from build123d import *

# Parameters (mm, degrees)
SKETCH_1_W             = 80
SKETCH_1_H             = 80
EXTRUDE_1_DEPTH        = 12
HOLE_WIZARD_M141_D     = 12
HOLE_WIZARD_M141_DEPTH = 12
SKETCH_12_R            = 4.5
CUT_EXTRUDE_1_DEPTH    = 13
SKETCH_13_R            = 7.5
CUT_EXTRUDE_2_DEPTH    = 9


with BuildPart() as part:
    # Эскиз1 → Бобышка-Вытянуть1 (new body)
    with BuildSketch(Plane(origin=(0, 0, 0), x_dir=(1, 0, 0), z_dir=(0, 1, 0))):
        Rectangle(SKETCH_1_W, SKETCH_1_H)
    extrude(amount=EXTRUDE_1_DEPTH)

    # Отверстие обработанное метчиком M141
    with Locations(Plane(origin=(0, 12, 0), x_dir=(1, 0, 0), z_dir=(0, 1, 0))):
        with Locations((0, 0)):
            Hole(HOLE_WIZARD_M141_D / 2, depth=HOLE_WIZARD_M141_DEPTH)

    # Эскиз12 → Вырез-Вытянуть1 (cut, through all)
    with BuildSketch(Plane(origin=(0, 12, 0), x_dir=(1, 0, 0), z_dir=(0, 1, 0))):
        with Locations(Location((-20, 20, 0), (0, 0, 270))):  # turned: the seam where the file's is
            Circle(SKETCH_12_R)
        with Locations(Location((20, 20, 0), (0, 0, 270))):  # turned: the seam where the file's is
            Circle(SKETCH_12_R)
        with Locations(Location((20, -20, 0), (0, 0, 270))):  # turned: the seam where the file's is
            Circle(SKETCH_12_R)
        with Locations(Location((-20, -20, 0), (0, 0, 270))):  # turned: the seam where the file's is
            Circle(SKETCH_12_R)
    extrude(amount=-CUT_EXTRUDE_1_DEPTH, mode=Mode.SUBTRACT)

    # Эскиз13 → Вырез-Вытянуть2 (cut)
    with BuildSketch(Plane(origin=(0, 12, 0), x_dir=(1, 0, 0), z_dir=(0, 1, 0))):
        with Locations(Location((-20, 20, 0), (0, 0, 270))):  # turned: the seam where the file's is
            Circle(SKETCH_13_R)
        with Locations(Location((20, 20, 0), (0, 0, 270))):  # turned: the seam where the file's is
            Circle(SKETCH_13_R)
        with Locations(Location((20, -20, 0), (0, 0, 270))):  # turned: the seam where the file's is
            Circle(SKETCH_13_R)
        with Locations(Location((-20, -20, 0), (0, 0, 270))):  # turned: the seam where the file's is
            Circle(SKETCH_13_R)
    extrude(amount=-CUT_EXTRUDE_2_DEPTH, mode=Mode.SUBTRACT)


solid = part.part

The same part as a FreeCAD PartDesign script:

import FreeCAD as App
import Part
import Sketcher

doc = App.newDocument("Part")
params = doc.addObject("Spreadsheet::Sheet", "Params")
for row, (alias, value) in enumerate([
    ("sketch1_width", "80 mm"),
    ("pad1_length", "12 mm"),
    ("sketch2_diameter", "12 mm"),
    ("hole_diameter", "12 mm"),
    ("hole_depth", "12 mm"),
    ("sketch3_diameter", "9 mm"),
    ("sketch4_diameter", "15 mm"),
    ("pocket2_length", "9 mm"),
], start=1):
    params.set(f"A{row}", alias)
    params.set(f"B{row}", "=" + value)
    params.setAlias(f"B{row}", alias)

body = doc.addObject("PartDesign::Body", "Body")

# Sketch on XZ plane
sketch1 = body.newObject("Sketcher::SketchObject", "Sketch")
sketch1.AttachmentSupport = (doc.getObject("XZ_Plane"), [""])
sketch1.MapMode = "FlatFace"
sketch1.addGeometry([
    Part.LineSegment(App.Vector(-40, -40, 0), App.Vector(-40, 40, 0)),
    Part.LineSegment(App.Vector(-40, 40, 0), App.Vector(40, 40, 0)),
    Part.LineSegment(App.Vector(40, 40, 0), App.Vector(40, -40, 0)),
    Part.LineSegment(App.Vector(40, -40, 0), App.Vector(-40, -40, 0)),
], False)
sketch1.addConstraint([
    Sketcher.Constraint("Coincident", 0, 2, 1, 1),
    Sketcher.Constraint("Coincident", 1, 2, 2, 1),
    Sketcher.Constraint("Coincident", 2, 2, 3, 1),
    Sketcher.Constraint("Coincident", 3, 2, 0, 1),
    Sketcher.Constraint("Vertical", 0),
    Sketcher.Constraint("Horizontal", 1),
    Sketcher.Constraint("Vertical", 2),
    Sketcher.Constraint("Horizontal", 3),
    Sketcher.Constraint("Symmetric", 0, 2, 2, 2, -1, 1),
    Sketcher.Constraint("Equal", 3, 0),
    Sketcher.Constraint("DistanceX", 1, 1, 1, 2, 80.0),
])
sketch1.setExpression("Constraints[10]", "Params.sketch1_width")
pad1 = body.newObject("PartDesign::Pad", "Pad")
pad1.Profile = sketch1
pad1.setExpression("Length", "Params.pad1_length")
pad1.Reversed = True

# Sketch on XZ plane
sketch2 = body.newObject("Sketcher::SketchObject", "Sketch001")
sketch2.AttachmentSupport = (doc.getObject("XZ_Plane"), [""])
sketch2.MapMode = "FlatFace"
sketch2.AttachmentOffset = App.Placement(App.Vector(0, 0, -12), App.Rotation())
sketch2.addGeometry(Part.Circle(App.Vector(0, 0, 0), App.Vector(0, 0, 1), 6), False)
sketch2.addConstraint([
    Sketcher.Constraint("Coincident", 0, 3, -1, 1),
    Sketcher.Constraint("Diameter", 0, 12.0),
])
sketch2.setExpression("Constraints[1]", "Params.sketch2_diameter")
doc.recompute()
hole = body.newObject("PartDesign::Hole", "Hole")
hole.Profile = sketch2
hole.ThreadType = "None"
hole.setExpression("Diameter", "Params.hole_diameter")
hole.DepthType = "Dimension"
hole.setExpression("Depth", "Params.hole_depth")
hole.DrillPoint = "Flat"
hole.Reversed = True

# Sketch on XZ plane
sketch3 = body.newObject("Sketcher::SketchObject", "Sketch002")
sketch3.AttachmentSupport = (doc.getObject("XZ_Plane"), [""])
sketch3.MapMode = "FlatFace"
sketch3.AttachmentOffset = App.Placement(App.Vector(0, 0, -12), App.Rotation())
sketch3.addGeometry([
    Part.Circle(App.Vector(-20, -20, 0), App.Vector(0, 0, 1), 4.5),
    Part.Circle(App.Vector(20, -20, 0), App.Vector(0, 0, 1), 4.5),
    Part.Circle(App.Vector(20, 20, 0), App.Vector(0, 0, 1), 4.5),
    Part.Circle(App.Vector(-20, 20, 0), App.Vector(0, 0, 1), 4.5),
], False)
sketch3.addConstraint([
    Sketcher.Constraint("Equal", 0, 1),
    Sketcher.Constraint("Equal", 1, 2),
    Sketcher.Constraint("Equal", 2, 3),
    Sketcher.Constraint("Symmetric", 0, 3, 2, 3, -1, 1),
    Sketcher.Constraint("Symmetric", 1, 3, 3, 3, -1, 1),
    Sketcher.Constraint("Symmetric", 0, 3, 1, 3, -2),
    Sketcher.Constraint("Diameter", 0, 9.0),
    Sketcher.Constraint("DistanceX", 0, 3, -1, 1, 20.0),
    Sketcher.Constraint("DistanceY", 0, 3, -1, 1, 20.0),
])
sketch3.setExpression("Constraints[6]", "Params.sketch3_diameter")
pocket1 = body.newObject("PartDesign::Pocket", "Pocket")
pocket1.Profile = sketch3
pocket1.Type = "ThroughAll"
pocket1.Reversed = True

# Sketch on XZ plane
sketch4 = body.newObject("Sketcher::SketchObject", "Sketch003")
sketch4.AttachmentSupport = (doc.getObject("XZ_Plane"), [""])
sketch4.MapMode = "FlatFace"
sketch4.AttachmentOffset = App.Placement(App.Vector(0, 0, -12), App.Rotation())
sketch4.addGeometry([
    Part.Circle(App.Vector(-20, -20, 0), App.Vector(0, 0, 1), 7.5),
    Part.Circle(App.Vector(20, -20, 0), App.Vector(0, 0, 1), 7.5),
    Part.Circle(App.Vector(20, 20, 0), App.Vector(0, 0, 1), 7.5),
    Part.Circle(App.Vector(-20, 20, 0), App.Vector(0, 0, 1), 7.5),
], False)
sketch4.addConstraint([
    Sketcher.Constraint("Equal", 0, 1),
    Sketcher.Constraint("Equal", 1, 2),
    Sketcher.Constraint("Equal", 2, 3),
    Sketcher.Constraint("Symmetric", 0, 3, 2, 3, -1, 1),
    Sketcher.Constraint("Symmetric", 1, 3, 3, 3, -1, 1),
    Sketcher.Constraint("Symmetric", 0, 3, 1, 3, -2),
    Sketcher.Constraint("Diameter", 0, 15.0),
    Sketcher.Constraint("DistanceX", 0, 3, -1, 1, 20.0),
    Sketcher.Constraint("DistanceY", 0, 3, -1, 1, 20.0),
])
sketch4.setExpression("Constraints[6]", "Params.sketch4_diameter")
pocket2 = body.newObject("PartDesign::Pocket", "Pocket001")
pocket2.Profile = sketch4
pocket2.setExpression("Length", "Params.pocket2_length")
pocket2.Reversed = True

doc.recompute()
